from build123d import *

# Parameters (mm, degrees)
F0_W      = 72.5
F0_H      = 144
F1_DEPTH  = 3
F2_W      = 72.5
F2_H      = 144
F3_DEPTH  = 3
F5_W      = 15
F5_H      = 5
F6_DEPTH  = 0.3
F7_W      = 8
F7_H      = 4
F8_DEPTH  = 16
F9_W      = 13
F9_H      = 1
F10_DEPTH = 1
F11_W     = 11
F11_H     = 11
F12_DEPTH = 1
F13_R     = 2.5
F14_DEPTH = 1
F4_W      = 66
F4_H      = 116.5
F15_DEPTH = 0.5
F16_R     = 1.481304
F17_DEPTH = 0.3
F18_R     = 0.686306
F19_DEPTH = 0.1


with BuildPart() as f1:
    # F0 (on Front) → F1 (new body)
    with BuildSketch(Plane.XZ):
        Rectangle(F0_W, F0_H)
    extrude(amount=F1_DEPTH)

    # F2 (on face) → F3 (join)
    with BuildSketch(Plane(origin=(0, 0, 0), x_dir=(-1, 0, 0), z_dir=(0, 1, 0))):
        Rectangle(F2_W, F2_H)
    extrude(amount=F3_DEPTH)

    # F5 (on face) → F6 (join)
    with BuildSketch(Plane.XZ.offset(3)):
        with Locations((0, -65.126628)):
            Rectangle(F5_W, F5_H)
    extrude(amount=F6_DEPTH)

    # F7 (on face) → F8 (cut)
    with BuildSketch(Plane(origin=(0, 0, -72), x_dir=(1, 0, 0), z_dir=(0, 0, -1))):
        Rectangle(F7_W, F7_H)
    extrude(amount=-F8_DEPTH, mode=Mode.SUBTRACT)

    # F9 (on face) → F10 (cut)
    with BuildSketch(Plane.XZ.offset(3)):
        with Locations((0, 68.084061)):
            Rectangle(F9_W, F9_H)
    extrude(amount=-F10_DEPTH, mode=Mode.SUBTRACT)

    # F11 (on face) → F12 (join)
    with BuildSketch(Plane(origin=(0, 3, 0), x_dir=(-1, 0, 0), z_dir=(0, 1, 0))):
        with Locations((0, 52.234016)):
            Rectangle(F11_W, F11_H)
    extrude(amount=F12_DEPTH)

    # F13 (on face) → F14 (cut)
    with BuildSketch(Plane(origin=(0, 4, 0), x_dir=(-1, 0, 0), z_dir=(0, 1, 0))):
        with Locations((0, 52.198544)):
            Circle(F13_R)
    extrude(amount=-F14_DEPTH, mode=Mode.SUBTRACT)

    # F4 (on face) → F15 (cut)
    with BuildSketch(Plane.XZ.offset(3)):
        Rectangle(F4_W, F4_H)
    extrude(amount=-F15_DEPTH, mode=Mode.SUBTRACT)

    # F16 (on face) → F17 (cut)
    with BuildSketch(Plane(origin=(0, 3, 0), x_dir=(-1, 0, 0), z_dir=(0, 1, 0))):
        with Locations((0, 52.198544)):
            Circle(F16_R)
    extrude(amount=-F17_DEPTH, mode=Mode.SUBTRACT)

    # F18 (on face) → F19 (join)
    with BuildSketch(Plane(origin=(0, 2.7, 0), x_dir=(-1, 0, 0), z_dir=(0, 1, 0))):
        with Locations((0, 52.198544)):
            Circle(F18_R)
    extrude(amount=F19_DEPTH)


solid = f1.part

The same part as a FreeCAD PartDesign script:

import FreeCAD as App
import Part
import Sketcher
from FreeCAD import Vector

doc = App.newDocument("Part")
body = doc.addObject("PartDesign::Body", "Body")

sketch1 = body.newObject("Sketcher::SketchObject", "Sketch")
sketch1.AttachmentSupport = (doc.getObject("XZ_Plane"), [""])
sketch1.MapMode = "FlatFace"
sketch1.addGeometry(Part.LineSegment(Vector(-36, 72, 0), Vector(-36, -72, 0)), False)
sketch1.addGeometry(Part.LineSegment(Vector(-36, -72, 0), Vector(36, -72, 0)), False)
sketch1.addGeometry(Part.LineSegment(Vector(36, -72, 0), Vector(36, 72, 0)), False)
sketch1.addGeometry(Part.LineSegment(Vector(36, 72, 0), Vector(-36, 72, 0)), False)
sketch1.addConstraint(Sketcher.Constraint("Coincident", 0, 2, 1, 1))
sketch1.addConstraint(Sketcher.Constraint("Coincident", 1, 2, 2, 1))
sketch1.addConstraint(Sketcher.Constraint("Coincident", 2, 2, 3, 1))
sketch1.addConstraint(Sketcher.Constraint("Coincident", 3, 2, 0, 1))
sketch1.addConstraint(Sketcher.Constraint("Vertical", 0))
sketch1.addConstraint(Sketcher.Constraint("Horizontal", 1))
sketch1.addConstraint(Sketcher.Constraint("Vertical", 2))
sketch1.addConstraint(Sketcher.Constraint("Horizontal", 3))
sketch1.addConstraint(Sketcher.Constraint("Symmetric", 0, 2, 2, 2, -1, 1))
sketch1.addConstraint(Sketcher.Constraint("DistanceY", 0, 2, 0, 1, 144.0))
sketch1.addConstraint(Sketcher.Constraint("DistanceX", 1, 1, 1, 2, 72.5))
pad1 = body.newObject("PartDesign::Pad", "Pad")
pad1.Profile = sketch1
pad1.Length = 3

sketch2 = body.newObject("Sketcher::SketchObject", "Sketch001")
sketch2.AttachmentSupport = (doc.getObject("XZ_Plane"), [""])
sketch2.MapMode = "FlatFace"
sketch2.addGeometry(Part.LineSegment(Vector(36, 72, 0), Vector(36, -72, 0)), False)
sketch2.addGeometry(Part.LineSegment(Vector(36, -72, 0), Vector(-36, -72, 0)), False)
sketch2.addGeometry(Part.LineSegment(Vector(-36, -72, 0), Vector(-36, 72, 0)), False)
sketch2.addGeometry(Part.LineSegment(Vector(-36, 72, 0), Vector(36, 72, 0)), False)
sketch2.addConstraint(Sketcher.Constraint("Coincident", 0, 2, 1, 1))
sketch2.addConstraint(Sketcher.Constraint("Coincident", 1, 2, 2, 1))
sketch2.addConstraint(Sketcher.Constraint("Coincident", 2, 2, 3, 1))
sketch2.addConstraint(Sketcher.Constraint("Coincident", 3, 2, 0, 1))
sketch2.addConstraint(Sketcher.Constraint("Vertical", 0))
sketch2.addConstraint(Sketcher.Constraint("Horizontal", 1))
sketch2.addConstraint(Sketcher.Constraint("Vertical", 2))
sketch2.addConstraint(Sketcher.Constraint("Horizontal", 3))
sketch2.addConstraint(Sketcher.Constraint("Symmetric", 0, 2, 2, 2, -1, 1))
sketch2.addConstraint(Sketcher.Constraint("DistanceY", 0, 2, 0, 1, 144.0))
sketch2.addConstraint(Sketcher.Constraint("DistanceX", 1, 2, 1, 1, 72.5))
pad2 = body.newObject("PartDesign::Pad", "Pad001")
pad2.Profile = sketch2
pad2.Length = 3
pad2.Reversed = True

sketch3 = body.newObject("Sketcher::SketchObject", "Sketch002")
sketch3.AttachmentSupport = (doc.getObject("XZ_Plane"), [""])
sketch3.MapMode = "FlatFace"
sketch3.AttachmentOffset = App.Placement(Vector(0, 0, 3), App.Rotation())
sketch3.addGeometry(Part.LineSegment(Vector(-8, -63, 0), Vector(-8, -68, 0)), False)
sketch3.addGeometry(Part.LineSegment(Vector(-8, -68, 0), Vector(8, -68, 0)), False)
sketch3.addGeometry(Part.LineSegment(Vector(8, -68, 0), Vector(8, -63, 0)), False)
sketch3.addGeometry(Part.LineSegment(Vector(8, -63, 0), Vector(-8, -63, 0)), False)
sketch3.addConstraint(Sketcher.Constraint("Coincident", 0, 2, 1, 1))
sketch3.addConstraint(Sketcher.Constraint("Coincident", 1, 2, 2, 1))
sketch3.addConstraint(Sketcher.Constraint("Coincident", 2, 2, 3, 1))
sketch3.addConstraint(Sketcher.Constraint("Coincident", 3, 2, 0, 1))
sketch3.addConstraint(Sketcher.Constraint("Vertical", 0))
sketch3.addConstraint(Sketcher.Constraint("Horizontal", 1))
sketch3.addConstraint(Sketcher.Constraint("Vertical", 2))
sketch3.addConstraint(Sketcher.Constraint("Horizontal", 3))
sketch3.addConstraint(Sketcher.Constraint("DistanceX", 1, 1, 1, 2, 15.0))
sketch3.addConstraint(Sketcher.Constraint("DistanceY", 0, 2, 0, 1, 5.0))
sketch3.addConstraint(Sketcher.Constraint("DistanceX", 0, 2, -1, 1, 7.5))
sketch3.addConstraint(Sketcher.Constraint("DistanceY", 0, 2, -1, 1, 67.626628))
pad3 = body.newObject("PartDesign::Pad", "Pad002")
pad3.Profile = sketch3
pad3.Length = 0.3

sketch4 = body.newObject("Sketcher::SketchObject", "Sketch003")
sketch4.AttachmentSupport = (doc.getObject("XY_Plane"), [""])
sketch4.MapMode = "FlatFace"
sketch4.AttachmentOffset = App.Placement(Vector(0, 0, -72), App.Rotation())
sketch4.addGeometry(Part.LineSegment(Vector(-4, -2, 0), Vector(-4, 2, 0)), False)
sketch4.addGeometry(Part.LineSegment(Vector(-4, 2, 0), Vector(4, 2, 0)), False)
sketch4.addGeometry(Part.LineSegment(Vector(4, 2, 0), Vector(4, -2, 0)), False)
sketch4.addGeometry(Part.LineSegment(Vector(4, -2, 0), Vector(-4, -2, 0)), False)
sketch4.addConstraint(Sketcher.Constraint("Coincident", 0, 2, 1, 1))
sketch4.addConstraint(Sketcher.Constraint("Coincident", 1, 2, 2, 1))
sketch4.addConstraint(Sketcher.Constraint("Coincident", 2, 2, 3, 1))
sketch4.addConstraint(Sketcher.Constraint("Coincident", 3, 2, 0, 1))
sketch4.addConstraint(Sketcher.Constraint("Vertical", 0))
sketch4.addConstraint(Sketcher.Constraint("Horizontal", 1))
sketch4.addConstraint(Sketcher.Constraint("Vertical", 2))
sketch4.addConstraint(Sketcher.Constraint("Horizontal", 3))
sketch4.addConstraint(Sketcher.Constraint("Symmetric", 0, 2, 2, 2, -1, 1))
sketch4.addConstraint(Sketcher.Constraint("DistanceX", 1, 1, 1, 2, 8.0))
sketch4.addConstraint(Sketcher.Constraint("DistanceY", 0, 1, 0, 2, 4.0))
pocket1 = body.newObject("PartDesign::Pocket", "Pocket")
pocket1.Profile = sketch4
pocket1.Length = 16
pocket1.Reversed = True

sketch5 = body.newObject("Sketcher::SketchObject", "Sketch004")
sketch5.AttachmentSupport = (doc.getObject("XZ_Plane"), [""])
sketch5.MapMode = "FlatFace"
sketch5.AttachmentOffset = App.Placement(Vector(0, 0, 3), App.Rotation())
sketch5.addGeometry(Part.LineSegment(Vector(-6.5, 68.6, 0), Vector(-6.5, 67.6, 0)), False)
sketch5.addGeometry(Part.LineSegment(Vector(-6.5, 67.6, 0), Vector(6.5, 67.6, 0)), False)
sketch5.addGeometry(Part.LineSegment(Vector(6.5, 67.6, 0), Vector(6.5, 68.6, 0)), False)
sketch5.addGeometry(Part.LineSegment(Vector(6.5, 68.6, 0), Vector(-6.5, 68.6, 0)), False)
sketch5.addConstraint(Sketcher.Constraint("Coincident", 0, 2, 1, 1))
sketch5.addConstraint(Sketcher.Constraint("Coincident", 1, 2, 2, 1))
sketch5.addConstraint(Sketcher.Constraint("Coincident", 2, 2, 3, 1))
sketch5.addConstraint(Sketcher.Constraint("Coincident", 3, 2, 0, 1))
sketch5.addConstraint(Sketcher.Constraint("Vertical", 0))
sketch5.addConstraint(Sketcher.Constraint("Horizontal", 1))
sketch5.addConstraint(Sketcher.Constraint("Vertical", 2))
sketch5.addConstraint(Sketcher.Constraint("Horizontal", 3))
sketch5.addConstraint(Sketcher.Constraint("DistanceX", 1, 1, 1, 2, 13.0))
sketch5.addConstraint(Sketcher.Constraint("DistanceY", 0, 2, 0, 1, 1.0))
sketch5.addConstraint(Sketcher.Constraint("DistanceX", 0, 2, -1, 1, 6.5))
sketch5.addConstraint(Sketcher.Constraint("DistanceY", -1, 1, 0, 2, 67.584061))
pocket2 = body.newObject("PartDesign::Pocket", "Pocket001")
pocket2.Profile = sketch5
pocket2.Length = 1

sketch6 = body.newObject("Sketcher::SketchObject", "Sketch005")
sketch6.AttachmentSupport = (doc.getObject("XZ_Plane"), [""])
sketch6.MapMode = "FlatFace"
sketch6.AttachmentOffset = App.Placement(Vector(0, 0, -3), App.Rotation())
sketch6.addGeometry(Part.LineSegment(Vector(6, 58, 0), Vector(6, 47, 0)), False)
sketch6.addGeometry(Part.LineSegment(Vector(6, 47, 0), Vector(-6, 47, 0)), False)
sketch6.addGeometry(Part.LineSegment(Vector(-6, 47, 0), Vector(-6, 58, 0)), False)
sketch6.addGeometry(Part.LineSegment(Vector(-6, 58, 0), Vector(6, 58, 0)), False)
sketch6.addConstraint(Sketcher.Constraint("Coincident", 0, 2, 1, 1))
sketch6.addConstraint(Sketcher.Constraint("Coincident", 1, 2, 2, 1))
sketch6.addConstraint(Sketcher.Constraint("Coincident", 2, 2, 3, 1))
sketch6.addConstraint(Sketcher.Constraint("Coincident", 3, 2, 0, 1))
sketch6.addConstraint(Sketcher.Constraint("Vertical", 0))
sketch6.addConstraint(Sketcher.Constraint("Horizontal", 1))
sketch6.addConstraint(Sketcher.Constraint("Vertical", 2))
sketch6.addConstraint(Sketcher.Constraint("Horizontal", 3))
sketch6.addConstraint(Sketcher.Constraint("Equal", 3, 0))
sketch6.addConstraint(Sketcher.Constraint("DistanceX", 1, 2, 1, 1, 11.0))
sketch6.addConstraint(Sketcher.Constraint("DistanceX", -1, 1, 0, 2, 5.5))
sketch6.addConstraint(Sketcher.Constraint("DistanceY", -1, 1, 0, 2, 46.734016))
pad4 = body.newObject("PartDesign::Pad", "Pad003")
pad4.Profile = sketch6
pad4.Length = 1
pad4.Reversed = True

sketch7 = body.newObject("Sketcher::SketchObject", "Sketch006")
sketch7.AttachmentSupport = (doc.getObject("XZ_Plane"), [""])
sketch7.MapMode = "FlatFace"
sketch7.AttachmentOffset = App.Placement(Vector(0, 0, -4), App.Rotation())
sketch7.addGeometry(Part.Circle(Vector(0, 52.2, 0), Vector(0, 0, 1), 2.5), False)
sketch7.addConstraint(Sketcher.Constraint("PointOnObject", 0, 3, -2))
sketch7.addConstraint(Sketcher.Constraint("Diameter", 0, 5.0))
sketch7.addConstraint(Sketcher.Constraint("DistanceY", -1, 1, 0, 3, 52.198544))
pocket3 = body.newObject("PartDesign::Pocket", "Pocket002")
pocket3.Profile = sketch7
pocket3.Length = 1
pocket3.Reversed = True

sketch8 = body.newObject("Sketcher::SketchObject", "Sketch007")
sketch8.AttachmentSupport = (doc.getObject("XZ_Plane"), [""])
sketch8.MapMode = "FlatFace"
sketch8.AttachmentOffset = App.Placement(Vector(0, 0, 3), App.Rotation())
sketch8.addGeometry(Part.LineSegment(Vector(-33, 58, 0), Vector(-33, -58, 0)), False)
sketch8.addGeometry(Part.LineSegment(Vector(-33, -58, 0), Vector(33, -58, 0)), False)
sketch8.addGeometry(Part.LineSegment(Vector(33, -58, 0), Vector(33, 58, 0)), False)
sketch8.addGeometry(Part.LineSegment(Vector(33, 58, 0), Vector(-33, 58, 0)), False)
sketch8.addConstraint(Sketcher.Constraint("Coincident", 0, 2, 1, 1))
sketch8.addConstraint(Sketcher.Constraint("Coincident", 1, 2, 2, 1))
sketch8.addConstraint(Sketcher.Constraint("Coincident", 2, 2, 3, 1))
sketch8.addConstraint(Sketcher.Constraint("Coincident", 3, 2, 0, 1))
sketch8.addConstraint(Sketcher.Constraint("Vertical", 0))
sketch8.addConstraint(Sketcher.Constraint("Horizontal", 1))
sketch8.addConstraint(Sketcher.Constraint("Vertical", 2))
sketch8.addConstraint(Sketcher.Constraint("Horizontal", 3))
sketch8.addConstraint(Sketcher.Constraint("Symmetric", 0, 2, 2, 2, -1, 1))
sketch8.addConstraint(Sketcher.Constraint("DistanceX", 1, 1, 1, 2, 66.0))
sketch8.addConstraint(Sketcher.Constraint("DistanceY", 0, 2, 0, 1, 116.5))
pocket4 = body.newObject("PartDesign::Pocket", "Pocket003")
pocket4.Profile = sketch8
pocket4.Length = 0.5

sketch9 = body.newObject("Sketcher::SketchObject", "Sketch008")
sketch9.AttachmentSupport = (doc.getObject("XZ_Plane"), [""])
sketch9.MapMode = "FlatFace"
sketch9.AttachmentOffset = App.Placement(Vector(0, 0, -3), App.Rotation())
sketch9.addGeometry(Part.Circle(Vector(0, 52.2, 0), Vector(0, 0, 1), 1.5), False)
sketch9.addConstraint(Sketcher.Constraint("PointOnObject", 0, 3, -2))
sketch9.addConstraint(Sketcher.Constraint("Diameter", 0, 2.962608))
sketch9.addConstraint(Sketcher.Constraint("DistanceY", -1, 1, 0, 3, 52.198544))
pocket5 = body.newObject("PartDesign::Pocket", "Pocket004")
pocket5.Profile = sketch9
pocket5.Length = 0.3
pocket5.Reversed = True

sketch10 = body.newObject("Sketcher::SketchObject", "Sketch009")
sketch10.AttachmentSupport = (doc.getObject("XZ_Plane"), [""])
sketch10.MapMode = "FlatFace"
sketch10.AttachmentOffset = App.Placement(Vector(0, 0, -2.7), App.Rotation())
sketch10.addGeometry(Part.Circle(Vector(0, 52.2, 0), Vector(0, 0, 1), 0.7), False)
sketch10.addConstraint(Sketcher.Constraint("PointOnObject", 0, 3, -2))
sketch10.addConstraint(Sketcher.Constraint("Diameter", 0, 1.372612))
sketch10.addConstraint(Sketcher.Constraint("DistanceY", -1, 1, 0, 3, 52.198544))
pad5 = body.newObject("PartDesign::Pad", "Pad004")
pad5.Profile = sketch10
pad5.Length = 0.1
pad5.Reversed = True

doc.recompute()
